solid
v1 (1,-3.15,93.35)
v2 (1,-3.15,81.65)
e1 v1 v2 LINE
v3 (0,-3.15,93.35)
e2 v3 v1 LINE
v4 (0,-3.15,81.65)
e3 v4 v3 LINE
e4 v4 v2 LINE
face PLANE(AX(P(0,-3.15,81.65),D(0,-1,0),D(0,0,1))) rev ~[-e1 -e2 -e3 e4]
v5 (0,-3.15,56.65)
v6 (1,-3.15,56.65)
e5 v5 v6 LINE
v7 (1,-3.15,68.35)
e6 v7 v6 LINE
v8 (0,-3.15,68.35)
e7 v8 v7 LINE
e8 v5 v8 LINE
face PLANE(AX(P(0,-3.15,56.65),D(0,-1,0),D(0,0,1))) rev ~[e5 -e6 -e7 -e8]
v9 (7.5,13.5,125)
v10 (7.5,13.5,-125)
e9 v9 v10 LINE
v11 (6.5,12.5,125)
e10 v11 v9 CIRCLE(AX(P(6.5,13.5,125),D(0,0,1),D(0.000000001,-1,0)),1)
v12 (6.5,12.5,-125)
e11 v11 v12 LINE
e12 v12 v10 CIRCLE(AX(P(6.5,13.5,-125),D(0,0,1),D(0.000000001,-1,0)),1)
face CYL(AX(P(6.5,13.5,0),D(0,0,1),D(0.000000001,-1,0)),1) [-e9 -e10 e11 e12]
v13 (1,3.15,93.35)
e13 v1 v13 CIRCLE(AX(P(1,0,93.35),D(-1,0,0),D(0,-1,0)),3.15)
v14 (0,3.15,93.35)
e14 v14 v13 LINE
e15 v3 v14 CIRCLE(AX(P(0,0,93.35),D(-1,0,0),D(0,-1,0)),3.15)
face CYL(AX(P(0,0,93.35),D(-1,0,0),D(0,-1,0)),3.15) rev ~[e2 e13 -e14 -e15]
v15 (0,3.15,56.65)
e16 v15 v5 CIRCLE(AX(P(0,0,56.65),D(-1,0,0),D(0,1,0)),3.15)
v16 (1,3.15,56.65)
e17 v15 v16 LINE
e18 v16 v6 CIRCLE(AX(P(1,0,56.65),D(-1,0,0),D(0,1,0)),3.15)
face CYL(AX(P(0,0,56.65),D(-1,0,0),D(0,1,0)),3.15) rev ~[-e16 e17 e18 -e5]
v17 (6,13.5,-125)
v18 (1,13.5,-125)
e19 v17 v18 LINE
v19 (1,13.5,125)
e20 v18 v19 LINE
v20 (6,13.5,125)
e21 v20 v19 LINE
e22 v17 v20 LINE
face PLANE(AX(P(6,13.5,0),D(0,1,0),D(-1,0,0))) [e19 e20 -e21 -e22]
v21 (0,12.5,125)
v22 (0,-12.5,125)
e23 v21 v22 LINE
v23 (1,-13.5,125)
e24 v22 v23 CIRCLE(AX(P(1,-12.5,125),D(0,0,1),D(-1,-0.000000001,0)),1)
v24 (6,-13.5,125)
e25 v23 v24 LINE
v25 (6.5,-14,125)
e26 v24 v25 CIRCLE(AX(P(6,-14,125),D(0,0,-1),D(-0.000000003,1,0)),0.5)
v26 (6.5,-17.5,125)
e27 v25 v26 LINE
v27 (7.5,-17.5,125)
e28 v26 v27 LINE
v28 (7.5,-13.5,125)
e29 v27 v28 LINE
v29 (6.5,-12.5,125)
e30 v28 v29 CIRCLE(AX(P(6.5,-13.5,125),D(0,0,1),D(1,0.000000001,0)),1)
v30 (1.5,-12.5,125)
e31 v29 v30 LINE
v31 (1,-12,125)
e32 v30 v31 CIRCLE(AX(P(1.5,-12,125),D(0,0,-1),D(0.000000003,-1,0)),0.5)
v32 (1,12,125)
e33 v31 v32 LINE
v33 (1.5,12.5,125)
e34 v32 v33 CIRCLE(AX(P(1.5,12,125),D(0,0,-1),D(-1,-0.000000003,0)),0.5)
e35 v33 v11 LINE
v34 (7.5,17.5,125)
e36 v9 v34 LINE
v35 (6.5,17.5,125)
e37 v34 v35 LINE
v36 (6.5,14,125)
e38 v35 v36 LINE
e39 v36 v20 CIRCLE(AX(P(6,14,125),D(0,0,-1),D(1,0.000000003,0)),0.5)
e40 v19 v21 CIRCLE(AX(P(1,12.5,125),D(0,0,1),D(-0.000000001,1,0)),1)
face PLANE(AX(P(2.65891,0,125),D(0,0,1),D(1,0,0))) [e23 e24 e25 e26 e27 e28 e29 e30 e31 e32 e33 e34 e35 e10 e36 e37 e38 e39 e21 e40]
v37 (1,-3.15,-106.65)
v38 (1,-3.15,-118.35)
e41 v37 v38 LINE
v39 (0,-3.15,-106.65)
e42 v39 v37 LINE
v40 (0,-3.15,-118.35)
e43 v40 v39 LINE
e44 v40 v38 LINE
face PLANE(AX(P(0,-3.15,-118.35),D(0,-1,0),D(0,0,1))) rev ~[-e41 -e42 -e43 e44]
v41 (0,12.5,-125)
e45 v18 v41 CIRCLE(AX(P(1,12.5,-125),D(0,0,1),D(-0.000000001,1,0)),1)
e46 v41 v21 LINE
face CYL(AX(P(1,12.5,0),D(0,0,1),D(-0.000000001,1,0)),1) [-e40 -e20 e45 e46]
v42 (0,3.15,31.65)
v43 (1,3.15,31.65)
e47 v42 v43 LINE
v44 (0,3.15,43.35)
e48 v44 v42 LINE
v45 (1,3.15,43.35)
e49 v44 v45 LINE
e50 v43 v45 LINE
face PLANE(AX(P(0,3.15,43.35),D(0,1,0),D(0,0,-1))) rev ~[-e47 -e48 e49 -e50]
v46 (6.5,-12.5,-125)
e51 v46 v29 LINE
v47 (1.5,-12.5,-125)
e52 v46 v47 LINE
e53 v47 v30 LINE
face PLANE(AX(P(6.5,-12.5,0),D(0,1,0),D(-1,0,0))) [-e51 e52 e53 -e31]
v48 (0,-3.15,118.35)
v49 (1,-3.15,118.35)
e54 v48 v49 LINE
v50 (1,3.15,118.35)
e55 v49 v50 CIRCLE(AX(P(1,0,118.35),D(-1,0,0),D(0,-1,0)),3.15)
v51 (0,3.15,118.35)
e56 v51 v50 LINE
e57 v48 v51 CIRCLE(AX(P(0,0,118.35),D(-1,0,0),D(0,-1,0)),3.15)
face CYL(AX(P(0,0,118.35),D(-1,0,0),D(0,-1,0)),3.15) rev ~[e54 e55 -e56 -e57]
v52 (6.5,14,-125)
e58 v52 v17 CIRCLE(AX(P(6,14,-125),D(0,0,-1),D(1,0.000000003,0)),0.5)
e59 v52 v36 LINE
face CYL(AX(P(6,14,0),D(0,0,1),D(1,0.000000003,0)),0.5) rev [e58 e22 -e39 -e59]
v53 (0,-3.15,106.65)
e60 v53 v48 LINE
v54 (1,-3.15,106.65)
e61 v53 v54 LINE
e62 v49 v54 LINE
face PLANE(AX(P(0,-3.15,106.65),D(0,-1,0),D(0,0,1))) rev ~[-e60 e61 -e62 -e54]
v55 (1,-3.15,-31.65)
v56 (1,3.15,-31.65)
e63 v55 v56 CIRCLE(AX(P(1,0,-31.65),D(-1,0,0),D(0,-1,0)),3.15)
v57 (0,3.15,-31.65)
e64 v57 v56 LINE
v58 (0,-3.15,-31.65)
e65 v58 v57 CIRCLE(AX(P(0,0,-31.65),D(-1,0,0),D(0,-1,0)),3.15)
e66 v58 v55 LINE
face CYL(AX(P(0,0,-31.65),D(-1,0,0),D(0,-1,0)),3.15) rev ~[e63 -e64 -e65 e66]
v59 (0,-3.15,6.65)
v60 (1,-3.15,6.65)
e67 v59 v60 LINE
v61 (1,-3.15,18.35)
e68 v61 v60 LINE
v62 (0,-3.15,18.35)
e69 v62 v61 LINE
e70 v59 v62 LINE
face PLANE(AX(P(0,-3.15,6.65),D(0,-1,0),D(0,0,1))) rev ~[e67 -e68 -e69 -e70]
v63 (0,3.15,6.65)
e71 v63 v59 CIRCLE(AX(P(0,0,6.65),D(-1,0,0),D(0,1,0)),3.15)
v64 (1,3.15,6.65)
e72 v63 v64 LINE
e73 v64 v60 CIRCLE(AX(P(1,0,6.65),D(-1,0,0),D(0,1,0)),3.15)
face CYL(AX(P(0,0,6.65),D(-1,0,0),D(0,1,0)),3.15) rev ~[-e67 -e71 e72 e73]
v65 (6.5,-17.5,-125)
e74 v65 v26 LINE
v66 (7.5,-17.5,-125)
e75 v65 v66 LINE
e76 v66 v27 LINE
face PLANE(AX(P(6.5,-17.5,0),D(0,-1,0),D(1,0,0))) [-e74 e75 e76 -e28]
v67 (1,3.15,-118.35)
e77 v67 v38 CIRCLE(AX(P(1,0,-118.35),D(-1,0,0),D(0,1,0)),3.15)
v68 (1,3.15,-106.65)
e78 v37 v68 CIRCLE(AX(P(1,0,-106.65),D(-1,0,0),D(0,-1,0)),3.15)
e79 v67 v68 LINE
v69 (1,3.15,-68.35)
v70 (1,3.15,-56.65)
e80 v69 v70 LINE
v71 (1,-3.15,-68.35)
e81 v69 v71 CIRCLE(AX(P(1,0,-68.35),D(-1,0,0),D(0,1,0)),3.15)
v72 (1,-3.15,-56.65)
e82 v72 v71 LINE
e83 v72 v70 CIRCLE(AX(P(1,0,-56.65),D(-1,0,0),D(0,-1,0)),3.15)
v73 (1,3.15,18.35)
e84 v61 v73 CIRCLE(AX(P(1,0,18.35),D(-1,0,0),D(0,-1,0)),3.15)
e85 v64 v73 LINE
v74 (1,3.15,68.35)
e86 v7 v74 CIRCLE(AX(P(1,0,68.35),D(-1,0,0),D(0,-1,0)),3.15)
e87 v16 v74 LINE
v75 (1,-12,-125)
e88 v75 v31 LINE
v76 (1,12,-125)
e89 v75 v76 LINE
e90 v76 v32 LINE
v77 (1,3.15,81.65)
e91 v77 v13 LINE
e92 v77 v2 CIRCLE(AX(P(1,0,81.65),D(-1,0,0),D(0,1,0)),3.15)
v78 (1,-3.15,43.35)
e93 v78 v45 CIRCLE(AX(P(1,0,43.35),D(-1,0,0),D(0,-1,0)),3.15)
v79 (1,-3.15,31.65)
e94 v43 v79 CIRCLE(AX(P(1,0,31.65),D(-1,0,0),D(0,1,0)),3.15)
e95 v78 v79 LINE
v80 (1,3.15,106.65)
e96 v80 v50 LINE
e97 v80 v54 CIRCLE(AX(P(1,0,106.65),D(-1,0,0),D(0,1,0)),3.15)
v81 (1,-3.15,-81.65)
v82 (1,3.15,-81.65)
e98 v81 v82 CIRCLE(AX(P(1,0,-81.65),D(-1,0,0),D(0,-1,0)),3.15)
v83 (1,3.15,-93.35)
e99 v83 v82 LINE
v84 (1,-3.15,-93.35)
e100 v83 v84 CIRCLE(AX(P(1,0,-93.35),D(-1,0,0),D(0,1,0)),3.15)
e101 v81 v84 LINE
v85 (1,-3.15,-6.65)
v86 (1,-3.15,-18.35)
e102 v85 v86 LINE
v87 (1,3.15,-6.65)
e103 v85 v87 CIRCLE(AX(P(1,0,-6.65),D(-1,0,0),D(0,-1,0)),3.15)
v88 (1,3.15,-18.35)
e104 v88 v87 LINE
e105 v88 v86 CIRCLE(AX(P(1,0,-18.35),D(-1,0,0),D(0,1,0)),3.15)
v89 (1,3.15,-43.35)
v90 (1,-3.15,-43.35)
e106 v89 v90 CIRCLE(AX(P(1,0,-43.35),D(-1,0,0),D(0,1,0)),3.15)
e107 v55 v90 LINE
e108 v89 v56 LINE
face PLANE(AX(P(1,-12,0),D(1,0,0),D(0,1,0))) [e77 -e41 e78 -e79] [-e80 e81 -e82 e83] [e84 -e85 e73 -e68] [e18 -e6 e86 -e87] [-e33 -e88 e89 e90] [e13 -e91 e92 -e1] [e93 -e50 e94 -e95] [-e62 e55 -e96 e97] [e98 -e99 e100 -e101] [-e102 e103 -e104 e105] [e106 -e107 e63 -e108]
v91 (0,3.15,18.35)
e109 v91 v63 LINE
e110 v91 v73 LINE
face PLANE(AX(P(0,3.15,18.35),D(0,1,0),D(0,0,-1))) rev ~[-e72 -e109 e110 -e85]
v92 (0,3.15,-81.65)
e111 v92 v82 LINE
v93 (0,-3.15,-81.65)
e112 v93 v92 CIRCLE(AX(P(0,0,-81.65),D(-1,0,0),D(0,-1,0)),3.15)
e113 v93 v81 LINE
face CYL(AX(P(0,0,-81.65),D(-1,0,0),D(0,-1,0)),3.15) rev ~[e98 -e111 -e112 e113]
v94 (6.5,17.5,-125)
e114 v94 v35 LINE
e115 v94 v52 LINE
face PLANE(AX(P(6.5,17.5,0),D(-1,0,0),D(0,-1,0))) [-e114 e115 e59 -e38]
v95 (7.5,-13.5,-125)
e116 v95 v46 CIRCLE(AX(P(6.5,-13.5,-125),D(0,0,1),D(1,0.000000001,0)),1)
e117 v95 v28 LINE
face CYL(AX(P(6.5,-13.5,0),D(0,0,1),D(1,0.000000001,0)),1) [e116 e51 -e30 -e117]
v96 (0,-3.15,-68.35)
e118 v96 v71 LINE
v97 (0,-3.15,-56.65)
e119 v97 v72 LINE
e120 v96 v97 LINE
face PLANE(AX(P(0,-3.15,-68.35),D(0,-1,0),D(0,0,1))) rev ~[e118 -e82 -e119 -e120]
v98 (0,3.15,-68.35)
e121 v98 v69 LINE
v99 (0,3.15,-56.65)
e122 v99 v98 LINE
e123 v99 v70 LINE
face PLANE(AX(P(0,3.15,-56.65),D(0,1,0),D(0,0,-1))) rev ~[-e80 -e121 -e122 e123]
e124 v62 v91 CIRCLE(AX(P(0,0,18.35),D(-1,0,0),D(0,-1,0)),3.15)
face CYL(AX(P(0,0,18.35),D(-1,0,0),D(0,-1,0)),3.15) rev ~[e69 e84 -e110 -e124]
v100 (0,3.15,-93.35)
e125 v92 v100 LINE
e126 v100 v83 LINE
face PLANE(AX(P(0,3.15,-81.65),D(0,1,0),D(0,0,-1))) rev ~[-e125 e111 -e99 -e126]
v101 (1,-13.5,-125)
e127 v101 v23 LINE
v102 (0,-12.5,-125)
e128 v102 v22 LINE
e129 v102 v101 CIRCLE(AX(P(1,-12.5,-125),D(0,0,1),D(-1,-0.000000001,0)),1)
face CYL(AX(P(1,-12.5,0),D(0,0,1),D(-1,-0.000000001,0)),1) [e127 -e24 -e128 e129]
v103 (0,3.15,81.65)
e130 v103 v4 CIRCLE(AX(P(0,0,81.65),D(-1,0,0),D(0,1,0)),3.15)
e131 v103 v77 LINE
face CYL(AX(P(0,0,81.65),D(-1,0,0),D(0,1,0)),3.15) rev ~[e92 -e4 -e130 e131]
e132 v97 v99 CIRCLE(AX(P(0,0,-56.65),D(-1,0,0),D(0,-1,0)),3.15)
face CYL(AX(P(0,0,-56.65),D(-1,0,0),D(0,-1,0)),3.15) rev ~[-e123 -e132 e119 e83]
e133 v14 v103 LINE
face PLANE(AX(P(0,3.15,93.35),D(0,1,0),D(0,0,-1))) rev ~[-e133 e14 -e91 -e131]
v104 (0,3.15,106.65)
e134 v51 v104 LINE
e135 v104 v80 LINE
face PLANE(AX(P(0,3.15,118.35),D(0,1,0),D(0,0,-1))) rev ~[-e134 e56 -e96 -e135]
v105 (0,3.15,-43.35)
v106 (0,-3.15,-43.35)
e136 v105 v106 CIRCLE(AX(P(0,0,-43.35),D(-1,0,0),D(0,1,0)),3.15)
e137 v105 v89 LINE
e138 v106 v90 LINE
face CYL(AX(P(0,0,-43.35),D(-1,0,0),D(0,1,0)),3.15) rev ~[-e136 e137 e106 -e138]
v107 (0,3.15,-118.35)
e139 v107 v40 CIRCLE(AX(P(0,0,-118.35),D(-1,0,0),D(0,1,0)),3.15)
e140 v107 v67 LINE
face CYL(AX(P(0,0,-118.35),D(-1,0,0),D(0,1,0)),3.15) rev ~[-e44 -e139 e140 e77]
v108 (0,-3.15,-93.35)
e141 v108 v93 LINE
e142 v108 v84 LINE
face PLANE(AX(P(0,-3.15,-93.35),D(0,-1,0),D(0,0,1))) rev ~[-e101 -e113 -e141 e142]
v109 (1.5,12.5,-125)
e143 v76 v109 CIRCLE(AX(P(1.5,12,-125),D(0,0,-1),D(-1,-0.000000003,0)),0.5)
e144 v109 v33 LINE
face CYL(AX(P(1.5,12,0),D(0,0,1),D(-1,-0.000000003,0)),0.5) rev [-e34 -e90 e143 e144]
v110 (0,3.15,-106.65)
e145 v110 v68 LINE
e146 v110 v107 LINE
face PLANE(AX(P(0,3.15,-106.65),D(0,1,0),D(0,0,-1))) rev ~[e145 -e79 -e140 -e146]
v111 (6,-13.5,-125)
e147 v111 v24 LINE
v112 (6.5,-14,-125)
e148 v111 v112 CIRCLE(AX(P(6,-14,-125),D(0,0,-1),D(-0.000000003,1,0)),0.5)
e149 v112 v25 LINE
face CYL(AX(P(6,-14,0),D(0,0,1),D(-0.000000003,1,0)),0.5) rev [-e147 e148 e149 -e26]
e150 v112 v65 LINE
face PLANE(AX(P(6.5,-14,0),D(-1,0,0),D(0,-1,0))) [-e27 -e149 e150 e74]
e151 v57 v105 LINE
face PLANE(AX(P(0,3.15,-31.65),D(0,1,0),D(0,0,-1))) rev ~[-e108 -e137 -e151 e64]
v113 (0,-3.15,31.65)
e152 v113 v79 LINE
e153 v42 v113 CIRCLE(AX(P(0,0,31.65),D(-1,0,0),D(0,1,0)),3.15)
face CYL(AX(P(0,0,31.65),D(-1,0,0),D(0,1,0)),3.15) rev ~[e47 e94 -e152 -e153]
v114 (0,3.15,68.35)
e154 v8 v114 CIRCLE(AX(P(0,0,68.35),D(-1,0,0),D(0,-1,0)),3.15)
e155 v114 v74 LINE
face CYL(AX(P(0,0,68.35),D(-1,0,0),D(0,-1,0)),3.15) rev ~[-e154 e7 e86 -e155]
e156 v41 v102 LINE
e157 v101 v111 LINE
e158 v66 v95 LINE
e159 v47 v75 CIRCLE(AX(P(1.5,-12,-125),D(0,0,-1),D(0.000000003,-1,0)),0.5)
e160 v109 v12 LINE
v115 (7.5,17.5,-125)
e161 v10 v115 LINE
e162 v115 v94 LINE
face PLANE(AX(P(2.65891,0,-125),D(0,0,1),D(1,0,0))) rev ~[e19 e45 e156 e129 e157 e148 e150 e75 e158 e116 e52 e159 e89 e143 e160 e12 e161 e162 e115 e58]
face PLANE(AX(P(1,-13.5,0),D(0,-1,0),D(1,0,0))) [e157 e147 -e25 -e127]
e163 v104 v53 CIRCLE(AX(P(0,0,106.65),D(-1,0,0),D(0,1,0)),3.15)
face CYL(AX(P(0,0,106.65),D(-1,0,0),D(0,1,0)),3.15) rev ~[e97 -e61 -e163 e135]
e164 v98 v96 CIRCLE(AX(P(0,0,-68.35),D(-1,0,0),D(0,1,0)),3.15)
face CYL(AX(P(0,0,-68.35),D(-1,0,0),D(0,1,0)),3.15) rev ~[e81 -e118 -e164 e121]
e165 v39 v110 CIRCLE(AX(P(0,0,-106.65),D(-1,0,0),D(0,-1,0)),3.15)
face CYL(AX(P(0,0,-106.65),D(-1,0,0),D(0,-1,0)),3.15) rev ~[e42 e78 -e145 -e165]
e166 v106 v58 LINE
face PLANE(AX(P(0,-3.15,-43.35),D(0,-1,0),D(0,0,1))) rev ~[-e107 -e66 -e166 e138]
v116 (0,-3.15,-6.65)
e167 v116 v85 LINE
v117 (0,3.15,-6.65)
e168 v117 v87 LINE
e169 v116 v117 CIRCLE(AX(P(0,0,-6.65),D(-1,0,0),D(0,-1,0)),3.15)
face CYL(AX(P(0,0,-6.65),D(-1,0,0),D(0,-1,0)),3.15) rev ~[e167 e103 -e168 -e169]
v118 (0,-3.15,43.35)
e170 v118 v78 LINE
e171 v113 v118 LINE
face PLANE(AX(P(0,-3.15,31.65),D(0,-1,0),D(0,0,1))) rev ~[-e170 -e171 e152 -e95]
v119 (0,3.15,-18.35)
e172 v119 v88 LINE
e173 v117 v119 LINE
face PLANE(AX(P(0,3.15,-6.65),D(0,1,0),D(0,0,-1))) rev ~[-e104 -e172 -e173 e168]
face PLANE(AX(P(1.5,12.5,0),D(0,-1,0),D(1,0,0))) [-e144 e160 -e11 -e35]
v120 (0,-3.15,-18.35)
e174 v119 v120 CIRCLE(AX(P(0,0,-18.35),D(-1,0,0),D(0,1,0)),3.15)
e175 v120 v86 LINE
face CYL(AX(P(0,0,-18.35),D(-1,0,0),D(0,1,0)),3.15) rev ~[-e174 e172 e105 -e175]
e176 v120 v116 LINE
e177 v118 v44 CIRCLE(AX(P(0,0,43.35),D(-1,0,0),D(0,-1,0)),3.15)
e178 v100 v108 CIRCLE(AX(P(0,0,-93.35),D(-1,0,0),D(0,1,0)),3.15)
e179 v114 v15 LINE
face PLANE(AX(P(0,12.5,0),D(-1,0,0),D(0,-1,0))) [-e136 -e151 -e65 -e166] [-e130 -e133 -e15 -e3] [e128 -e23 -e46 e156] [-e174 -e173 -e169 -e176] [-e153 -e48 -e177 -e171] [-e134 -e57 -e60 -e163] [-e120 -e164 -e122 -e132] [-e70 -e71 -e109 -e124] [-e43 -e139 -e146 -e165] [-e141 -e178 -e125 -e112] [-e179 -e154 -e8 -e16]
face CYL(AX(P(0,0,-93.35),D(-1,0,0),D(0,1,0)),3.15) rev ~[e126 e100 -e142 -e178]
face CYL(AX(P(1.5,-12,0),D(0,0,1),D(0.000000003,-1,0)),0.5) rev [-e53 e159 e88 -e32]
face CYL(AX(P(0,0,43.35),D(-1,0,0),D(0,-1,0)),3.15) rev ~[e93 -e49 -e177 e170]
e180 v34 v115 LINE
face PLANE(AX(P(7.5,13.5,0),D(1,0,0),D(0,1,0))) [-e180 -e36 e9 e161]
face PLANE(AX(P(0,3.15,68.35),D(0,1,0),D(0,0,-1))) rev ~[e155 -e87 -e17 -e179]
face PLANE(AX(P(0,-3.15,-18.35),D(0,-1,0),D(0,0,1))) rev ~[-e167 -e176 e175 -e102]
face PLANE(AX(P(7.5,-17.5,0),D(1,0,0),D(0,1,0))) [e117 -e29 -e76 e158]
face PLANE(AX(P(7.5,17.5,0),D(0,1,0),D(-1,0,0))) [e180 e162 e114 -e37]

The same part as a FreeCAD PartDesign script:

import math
import FreeCAD as App
import Part
import Sketcher

V = App.Vector
Q = App.Units.Quantity

doc = App.newDocument("Part")
params = doc.addObject("Spreadsheet::Sheet", "Params")
for row, (alias, value) in enumerate([
    ("sketch1_radius", "1 mm"),
    ("sketch1_radius2", "0.5 mm"),
    ("sketch1_width", "5 mm"),
    ("sketch1_height", "25 mm"),
    ("sketch1_height2", "4 mm"),
    ("pad1_length", "250 mm"),
    ("sketch2_radius", "3.15 mm"),
    ("sketch2_height", "11.7 mm"),
    ("pocket1_length", "7.5 mm"),
    ("linearpattern_pitch", "25 mm"),
], start=1):
    params.set(f"A{row}", alias)
    params.set(f"B{row}", "=" + value)
    params.setAlias(f"B{row}", alias)

body = doc.addObject("PartDesign::Body", "Body")

# Sketch on XY plane
sketch1 = body.newObject("Sketcher::SketchObject", "Sketch")
sketch1.AttachmentSupport = (doc.getObject("XY_Plane"), [""])
sketch1.MapMode = "FlatFace"
sketch1.addGeometry([
    Part.LineSegment(V(7.5, 17.5, 0), V(6.5, 17.5, 0)),  # 0
    Part.LineSegment(V(6.5, 17.5, 0), V(6.5, 14, 0)),  # 1
    Part.ArcOfCircle(Part.Circle(V(6, 14, 0), V(0, 0, 1), 0.5), math.radians(-90), math.radians(0)),  # 2
    Part.LineSegment(V(6, 13.5, 0), V(1, 13.5, 0)),  # 3
    Part.ArcOfCircle(Part.Circle(V(1, 12.5, 0), V(0, 0, 1), 1), math.radians(90), math.radians(180)),  # 4
    Part.LineSegment(V(0, 12.5, 0), V(0, -12.5, 0)),  # 5
    Part.ArcOfCircle(Part.Circle(V(1, -12.5, 0), V(0, 0, 1), 1), math.radians(-180), math.radians(-90)),  # 6
    Part.LineSegment(V(1, -13.5, 0), V(6, -13.5, 0)),  # 7
    Part.ArcOfCircle(Part.Circle(V(6, -14, 0), V(0, 0, 1), 0.5), math.radians(0), math.radians(90)),  # 8
    Part.LineSegment(V(6.5, -14, 0), V(6.5, -17.5, 0)),  # 9
    Part.LineSegment(V(6.5, -17.5, 0), V(7.5, -17.5, 0)),  # 10
    Part.LineSegment(V(7.5, -17.5, 0), V(7.5, -13.5, 0)),  # 11
    Part.ArcOfCircle(Part.Circle(V(6.5, -13.5, 0), V(0, 0, 1), 1), math.radians(0), math.radians(90)),  # 12
    Part.LineSegment(V(6.5, -12.5, 0), V(1.5, -12.5, 0)),  # 13
    Part.ArcOfCircle(Part.Circle(V(1.5, -12, 0), V(0, 0, 1), 0.5), math.radians(180), math.radians(270)),  # 14
    Part.LineSegment(V(1, -12, 0), V(1, 12, 0)),  # 15
    Part.ArcOfCircle(Part.Circle(V(1.5, 12, 0), V(0, 0, 1), 0.5), math.radians(90), math.radians(180)),  # 16
    Part.LineSegment(V(1.5, 12.5, 0), V(6.5, 12.5, 0)),  # 17
    Part.ArcOfCircle(Part.Circle(V(6.5, 13.5, 0), V(0, 0, 1), 1), math.radians(-90), math.radians(0)),  # 18
    Part.LineSegment(V(7.5, 13.5, 0), V(7.5, 17.5, 0)),  # 19
], False)
sketch1.addConstraint([
    Sketcher.Constraint("Coincident", 0, 2, 1, 1),
    Sketcher.Constraint("Tangent", 1, 2, 2, 2),
    Sketcher.Constraint("Tangent", 2, 1, 3, 1),
    Sketcher.Constraint("Tangent", 3, 2, 4, 1),
    Sketcher.Constraint("Tangent", 4, 2, 5, 1),
    Sketcher.Constraint("Tangent", 5, 2, 6, 1),
    Sketcher.Constraint("Tangent", 6, 2, 7, 1),
    Sketcher.Constraint("Tangent", 7, 2, 8, 2),
    Sketcher.Constraint("Tangent", 8, 1, 9, 1),
    Sketcher.Constraint("Coincident", 9, 2, 10, 1),
    Sketcher.Constraint("Coincident", 10, 2, 11, 1),
    Sketcher.Constraint("Tangent", 11, 2, 12, 1),
    Sketcher.Constraint("Tangent", 12, 2, 13, 1),
    Sketcher.Constraint("Tangent", 13, 2, 14, 2),
    Sketcher.Constraint("Tangent", 14, 1, 15, 1),
    Sketcher.Constraint("Tangent", 15, 2, 16, 2),
    Sketcher.Constraint("Tangent", 16, 1, 17, 1),
    Sketcher.Constraint("Tangent", 17, 2, 18, 1),
    Sketcher.Constraint("Tangent", 18, 2, 19, 1),
    Sketcher.Constraint("Coincident", 19, 2, 0, 1),
    Sketcher.Constraint("Horizontal", 0),
    Sketcher.Constraint("Vertical", 1),
    Sketcher.Constraint("Horizontal", 3),
    Sketcher.Constraint("Vertical", 5),
    Sketcher.Constraint("Horizontal", 7),
    Sketcher.Constraint("Vertical", 9),
    Sketcher.Constraint("Horizontal", 10),
    Sketcher.Constraint("Vertical", 11),
    Sketcher.Constraint("Horizontal", 13),
    Sketcher.Constraint("Vertical", 15),
    Sketcher.Constraint("Horizontal", 17),
    Sketcher.Constraint("Vertical", 19),
    Sketcher.Constraint("Equal", 4, 6),
    Sketcher.Constraint("Equal", 2, 8),
    Sketcher.Constraint("Equal", 6, 12),
    Sketcher.Constraint("Equal", 8, 14),
    Sketcher.Constraint("Equal", 14, 16),
    Sketcher.Constraint("Equal", 12, 18),
    Sketcher.Constraint("Symmetric", 4, 2, 5, 2, -1, 1),
    Sketcher.Constraint("Symmetric", 12, 3, 18, 3, -1),
    Sketcher.Constraint("Symmetric", 0, 2, 9, 2, -1),
    Sketcher.Constraint("Horizontal", 18, 3, 2, 1),
    Sketcher.Constraint("Vertical", 18, 3, 0, 2),
    Sketcher.Constraint("Vertical", 6, 2, 14, 1),
    Sketcher.Constraint("Radius", 4, Q("1 mm")),
    Sketcher.Constraint("Radius", 2, Q("0.5 mm")),
    Sketcher.Constraint("DistanceX", 3, 2, 3, 1, Q("5 mm")),
    Sketcher.Constraint("DistanceY", 5, 2, 5, 1, Q("25 mm")),
    Sketcher.Constraint("DistanceY", 11, 1, 11, 2, Q("4 mm")),
])
sketch1.setExpression("Constraints[44]", "Params.sketch1_radius")
sketch1.setExpression("Constraints[45]", "Params.sketch1_radius2")
sketch1.setExpression("Constraints[46]", "Params.sketch1_width")
sketch1.setExpression("Constraints[47]", "Params.sketch1_height")
sketch1.setExpression("Constraints[48]", "Params.sketch1_height2")
pad1 = body.newObject("PartDesign::Pad", "Pad")
pad1.Profile = sketch1
pad1.setExpression("Length", "Params.pad1_length")
pad1.Midplane = True

# Sketch on YZ plane
sketch2 = body.newObject("Sketcher::SketchObject", "Sketch001")
sketch2.AttachmentSupport = (doc.getObject("YZ_Plane"), [""])
sketch2.MapMode = "FlatFace"
sketch2.addGeometry([
    Part.LineSegment(V(3.15, 106.65, 0), V(3.15, 118.35, 0)),
    Part.ArcOfCircle(Part.Circle(V(0, 118.35, 0), V(0, 0, 1), 3.15), math.radians(0), math.radians(180)),
    Part.LineSegment(V(-3.15, 118.35, 0), V(-3.15, 106.65, 0)),
    Part.ArcOfCircle(Part.Circle(V(0, 106.65, 0), V(0, 0, 1), 3.15), math.radians(180), math.radians(360)),
], False)
sketch2.addConstraint([
    Sketcher.Constraint("Tangent", 0, 2, 1, 1),
    Sketcher.Constraint("Tangent", 1, 2, 2, 1),
    Sketcher.Constraint("Tangent", 2, 2, 3, 1),
    Sketcher.Constraint("Tangent", 3, 2, 0, 1),
    Sketcher.Constraint("Vertical", 0),
    Sketcher.Constraint("Vertical", 2),
    Sketcher.Constraint("PointOnObject", 1, 3, -2),
    Sketcher.Constraint("Radius", 1, Q("3.15 mm")),
    Sketcher.Constraint("DistanceY", 0, 1, 0, 2, Q("11.7 mm")),
    Sketcher.Constraint("DistanceY", -1, 1, 1, 3, Q("118.35 mm")),
])
sketch2.setExpression("Constraints[7]", "Params.sketch2_radius")
sketch2.setExpression("Constraints[8]", "Params.sketch2_height")
pocket1 = body.newObject("PartDesign::Pocket", "Pocket")
pocket1.Profile = sketch2
pocket1.setExpression("Length", "Params.pocket1_length")
pocket1.Reversed = True
doc.recompute()

linearpattern = body.newObject("PartDesign::LinearPattern", "LinearPattern")
linearpattern.Originals = [pocket1]
linearpattern.Direction = (doc.getObject("Z_Axis"), [""])
linearpattern.Mode = "offset"
linearpattern.setExpression("Offset", "Params.linearpattern_pitch")
linearpattern.Occurrences = 10
linearpattern.Reversed = True
body.Tip = linearpattern

doc.recompute()
